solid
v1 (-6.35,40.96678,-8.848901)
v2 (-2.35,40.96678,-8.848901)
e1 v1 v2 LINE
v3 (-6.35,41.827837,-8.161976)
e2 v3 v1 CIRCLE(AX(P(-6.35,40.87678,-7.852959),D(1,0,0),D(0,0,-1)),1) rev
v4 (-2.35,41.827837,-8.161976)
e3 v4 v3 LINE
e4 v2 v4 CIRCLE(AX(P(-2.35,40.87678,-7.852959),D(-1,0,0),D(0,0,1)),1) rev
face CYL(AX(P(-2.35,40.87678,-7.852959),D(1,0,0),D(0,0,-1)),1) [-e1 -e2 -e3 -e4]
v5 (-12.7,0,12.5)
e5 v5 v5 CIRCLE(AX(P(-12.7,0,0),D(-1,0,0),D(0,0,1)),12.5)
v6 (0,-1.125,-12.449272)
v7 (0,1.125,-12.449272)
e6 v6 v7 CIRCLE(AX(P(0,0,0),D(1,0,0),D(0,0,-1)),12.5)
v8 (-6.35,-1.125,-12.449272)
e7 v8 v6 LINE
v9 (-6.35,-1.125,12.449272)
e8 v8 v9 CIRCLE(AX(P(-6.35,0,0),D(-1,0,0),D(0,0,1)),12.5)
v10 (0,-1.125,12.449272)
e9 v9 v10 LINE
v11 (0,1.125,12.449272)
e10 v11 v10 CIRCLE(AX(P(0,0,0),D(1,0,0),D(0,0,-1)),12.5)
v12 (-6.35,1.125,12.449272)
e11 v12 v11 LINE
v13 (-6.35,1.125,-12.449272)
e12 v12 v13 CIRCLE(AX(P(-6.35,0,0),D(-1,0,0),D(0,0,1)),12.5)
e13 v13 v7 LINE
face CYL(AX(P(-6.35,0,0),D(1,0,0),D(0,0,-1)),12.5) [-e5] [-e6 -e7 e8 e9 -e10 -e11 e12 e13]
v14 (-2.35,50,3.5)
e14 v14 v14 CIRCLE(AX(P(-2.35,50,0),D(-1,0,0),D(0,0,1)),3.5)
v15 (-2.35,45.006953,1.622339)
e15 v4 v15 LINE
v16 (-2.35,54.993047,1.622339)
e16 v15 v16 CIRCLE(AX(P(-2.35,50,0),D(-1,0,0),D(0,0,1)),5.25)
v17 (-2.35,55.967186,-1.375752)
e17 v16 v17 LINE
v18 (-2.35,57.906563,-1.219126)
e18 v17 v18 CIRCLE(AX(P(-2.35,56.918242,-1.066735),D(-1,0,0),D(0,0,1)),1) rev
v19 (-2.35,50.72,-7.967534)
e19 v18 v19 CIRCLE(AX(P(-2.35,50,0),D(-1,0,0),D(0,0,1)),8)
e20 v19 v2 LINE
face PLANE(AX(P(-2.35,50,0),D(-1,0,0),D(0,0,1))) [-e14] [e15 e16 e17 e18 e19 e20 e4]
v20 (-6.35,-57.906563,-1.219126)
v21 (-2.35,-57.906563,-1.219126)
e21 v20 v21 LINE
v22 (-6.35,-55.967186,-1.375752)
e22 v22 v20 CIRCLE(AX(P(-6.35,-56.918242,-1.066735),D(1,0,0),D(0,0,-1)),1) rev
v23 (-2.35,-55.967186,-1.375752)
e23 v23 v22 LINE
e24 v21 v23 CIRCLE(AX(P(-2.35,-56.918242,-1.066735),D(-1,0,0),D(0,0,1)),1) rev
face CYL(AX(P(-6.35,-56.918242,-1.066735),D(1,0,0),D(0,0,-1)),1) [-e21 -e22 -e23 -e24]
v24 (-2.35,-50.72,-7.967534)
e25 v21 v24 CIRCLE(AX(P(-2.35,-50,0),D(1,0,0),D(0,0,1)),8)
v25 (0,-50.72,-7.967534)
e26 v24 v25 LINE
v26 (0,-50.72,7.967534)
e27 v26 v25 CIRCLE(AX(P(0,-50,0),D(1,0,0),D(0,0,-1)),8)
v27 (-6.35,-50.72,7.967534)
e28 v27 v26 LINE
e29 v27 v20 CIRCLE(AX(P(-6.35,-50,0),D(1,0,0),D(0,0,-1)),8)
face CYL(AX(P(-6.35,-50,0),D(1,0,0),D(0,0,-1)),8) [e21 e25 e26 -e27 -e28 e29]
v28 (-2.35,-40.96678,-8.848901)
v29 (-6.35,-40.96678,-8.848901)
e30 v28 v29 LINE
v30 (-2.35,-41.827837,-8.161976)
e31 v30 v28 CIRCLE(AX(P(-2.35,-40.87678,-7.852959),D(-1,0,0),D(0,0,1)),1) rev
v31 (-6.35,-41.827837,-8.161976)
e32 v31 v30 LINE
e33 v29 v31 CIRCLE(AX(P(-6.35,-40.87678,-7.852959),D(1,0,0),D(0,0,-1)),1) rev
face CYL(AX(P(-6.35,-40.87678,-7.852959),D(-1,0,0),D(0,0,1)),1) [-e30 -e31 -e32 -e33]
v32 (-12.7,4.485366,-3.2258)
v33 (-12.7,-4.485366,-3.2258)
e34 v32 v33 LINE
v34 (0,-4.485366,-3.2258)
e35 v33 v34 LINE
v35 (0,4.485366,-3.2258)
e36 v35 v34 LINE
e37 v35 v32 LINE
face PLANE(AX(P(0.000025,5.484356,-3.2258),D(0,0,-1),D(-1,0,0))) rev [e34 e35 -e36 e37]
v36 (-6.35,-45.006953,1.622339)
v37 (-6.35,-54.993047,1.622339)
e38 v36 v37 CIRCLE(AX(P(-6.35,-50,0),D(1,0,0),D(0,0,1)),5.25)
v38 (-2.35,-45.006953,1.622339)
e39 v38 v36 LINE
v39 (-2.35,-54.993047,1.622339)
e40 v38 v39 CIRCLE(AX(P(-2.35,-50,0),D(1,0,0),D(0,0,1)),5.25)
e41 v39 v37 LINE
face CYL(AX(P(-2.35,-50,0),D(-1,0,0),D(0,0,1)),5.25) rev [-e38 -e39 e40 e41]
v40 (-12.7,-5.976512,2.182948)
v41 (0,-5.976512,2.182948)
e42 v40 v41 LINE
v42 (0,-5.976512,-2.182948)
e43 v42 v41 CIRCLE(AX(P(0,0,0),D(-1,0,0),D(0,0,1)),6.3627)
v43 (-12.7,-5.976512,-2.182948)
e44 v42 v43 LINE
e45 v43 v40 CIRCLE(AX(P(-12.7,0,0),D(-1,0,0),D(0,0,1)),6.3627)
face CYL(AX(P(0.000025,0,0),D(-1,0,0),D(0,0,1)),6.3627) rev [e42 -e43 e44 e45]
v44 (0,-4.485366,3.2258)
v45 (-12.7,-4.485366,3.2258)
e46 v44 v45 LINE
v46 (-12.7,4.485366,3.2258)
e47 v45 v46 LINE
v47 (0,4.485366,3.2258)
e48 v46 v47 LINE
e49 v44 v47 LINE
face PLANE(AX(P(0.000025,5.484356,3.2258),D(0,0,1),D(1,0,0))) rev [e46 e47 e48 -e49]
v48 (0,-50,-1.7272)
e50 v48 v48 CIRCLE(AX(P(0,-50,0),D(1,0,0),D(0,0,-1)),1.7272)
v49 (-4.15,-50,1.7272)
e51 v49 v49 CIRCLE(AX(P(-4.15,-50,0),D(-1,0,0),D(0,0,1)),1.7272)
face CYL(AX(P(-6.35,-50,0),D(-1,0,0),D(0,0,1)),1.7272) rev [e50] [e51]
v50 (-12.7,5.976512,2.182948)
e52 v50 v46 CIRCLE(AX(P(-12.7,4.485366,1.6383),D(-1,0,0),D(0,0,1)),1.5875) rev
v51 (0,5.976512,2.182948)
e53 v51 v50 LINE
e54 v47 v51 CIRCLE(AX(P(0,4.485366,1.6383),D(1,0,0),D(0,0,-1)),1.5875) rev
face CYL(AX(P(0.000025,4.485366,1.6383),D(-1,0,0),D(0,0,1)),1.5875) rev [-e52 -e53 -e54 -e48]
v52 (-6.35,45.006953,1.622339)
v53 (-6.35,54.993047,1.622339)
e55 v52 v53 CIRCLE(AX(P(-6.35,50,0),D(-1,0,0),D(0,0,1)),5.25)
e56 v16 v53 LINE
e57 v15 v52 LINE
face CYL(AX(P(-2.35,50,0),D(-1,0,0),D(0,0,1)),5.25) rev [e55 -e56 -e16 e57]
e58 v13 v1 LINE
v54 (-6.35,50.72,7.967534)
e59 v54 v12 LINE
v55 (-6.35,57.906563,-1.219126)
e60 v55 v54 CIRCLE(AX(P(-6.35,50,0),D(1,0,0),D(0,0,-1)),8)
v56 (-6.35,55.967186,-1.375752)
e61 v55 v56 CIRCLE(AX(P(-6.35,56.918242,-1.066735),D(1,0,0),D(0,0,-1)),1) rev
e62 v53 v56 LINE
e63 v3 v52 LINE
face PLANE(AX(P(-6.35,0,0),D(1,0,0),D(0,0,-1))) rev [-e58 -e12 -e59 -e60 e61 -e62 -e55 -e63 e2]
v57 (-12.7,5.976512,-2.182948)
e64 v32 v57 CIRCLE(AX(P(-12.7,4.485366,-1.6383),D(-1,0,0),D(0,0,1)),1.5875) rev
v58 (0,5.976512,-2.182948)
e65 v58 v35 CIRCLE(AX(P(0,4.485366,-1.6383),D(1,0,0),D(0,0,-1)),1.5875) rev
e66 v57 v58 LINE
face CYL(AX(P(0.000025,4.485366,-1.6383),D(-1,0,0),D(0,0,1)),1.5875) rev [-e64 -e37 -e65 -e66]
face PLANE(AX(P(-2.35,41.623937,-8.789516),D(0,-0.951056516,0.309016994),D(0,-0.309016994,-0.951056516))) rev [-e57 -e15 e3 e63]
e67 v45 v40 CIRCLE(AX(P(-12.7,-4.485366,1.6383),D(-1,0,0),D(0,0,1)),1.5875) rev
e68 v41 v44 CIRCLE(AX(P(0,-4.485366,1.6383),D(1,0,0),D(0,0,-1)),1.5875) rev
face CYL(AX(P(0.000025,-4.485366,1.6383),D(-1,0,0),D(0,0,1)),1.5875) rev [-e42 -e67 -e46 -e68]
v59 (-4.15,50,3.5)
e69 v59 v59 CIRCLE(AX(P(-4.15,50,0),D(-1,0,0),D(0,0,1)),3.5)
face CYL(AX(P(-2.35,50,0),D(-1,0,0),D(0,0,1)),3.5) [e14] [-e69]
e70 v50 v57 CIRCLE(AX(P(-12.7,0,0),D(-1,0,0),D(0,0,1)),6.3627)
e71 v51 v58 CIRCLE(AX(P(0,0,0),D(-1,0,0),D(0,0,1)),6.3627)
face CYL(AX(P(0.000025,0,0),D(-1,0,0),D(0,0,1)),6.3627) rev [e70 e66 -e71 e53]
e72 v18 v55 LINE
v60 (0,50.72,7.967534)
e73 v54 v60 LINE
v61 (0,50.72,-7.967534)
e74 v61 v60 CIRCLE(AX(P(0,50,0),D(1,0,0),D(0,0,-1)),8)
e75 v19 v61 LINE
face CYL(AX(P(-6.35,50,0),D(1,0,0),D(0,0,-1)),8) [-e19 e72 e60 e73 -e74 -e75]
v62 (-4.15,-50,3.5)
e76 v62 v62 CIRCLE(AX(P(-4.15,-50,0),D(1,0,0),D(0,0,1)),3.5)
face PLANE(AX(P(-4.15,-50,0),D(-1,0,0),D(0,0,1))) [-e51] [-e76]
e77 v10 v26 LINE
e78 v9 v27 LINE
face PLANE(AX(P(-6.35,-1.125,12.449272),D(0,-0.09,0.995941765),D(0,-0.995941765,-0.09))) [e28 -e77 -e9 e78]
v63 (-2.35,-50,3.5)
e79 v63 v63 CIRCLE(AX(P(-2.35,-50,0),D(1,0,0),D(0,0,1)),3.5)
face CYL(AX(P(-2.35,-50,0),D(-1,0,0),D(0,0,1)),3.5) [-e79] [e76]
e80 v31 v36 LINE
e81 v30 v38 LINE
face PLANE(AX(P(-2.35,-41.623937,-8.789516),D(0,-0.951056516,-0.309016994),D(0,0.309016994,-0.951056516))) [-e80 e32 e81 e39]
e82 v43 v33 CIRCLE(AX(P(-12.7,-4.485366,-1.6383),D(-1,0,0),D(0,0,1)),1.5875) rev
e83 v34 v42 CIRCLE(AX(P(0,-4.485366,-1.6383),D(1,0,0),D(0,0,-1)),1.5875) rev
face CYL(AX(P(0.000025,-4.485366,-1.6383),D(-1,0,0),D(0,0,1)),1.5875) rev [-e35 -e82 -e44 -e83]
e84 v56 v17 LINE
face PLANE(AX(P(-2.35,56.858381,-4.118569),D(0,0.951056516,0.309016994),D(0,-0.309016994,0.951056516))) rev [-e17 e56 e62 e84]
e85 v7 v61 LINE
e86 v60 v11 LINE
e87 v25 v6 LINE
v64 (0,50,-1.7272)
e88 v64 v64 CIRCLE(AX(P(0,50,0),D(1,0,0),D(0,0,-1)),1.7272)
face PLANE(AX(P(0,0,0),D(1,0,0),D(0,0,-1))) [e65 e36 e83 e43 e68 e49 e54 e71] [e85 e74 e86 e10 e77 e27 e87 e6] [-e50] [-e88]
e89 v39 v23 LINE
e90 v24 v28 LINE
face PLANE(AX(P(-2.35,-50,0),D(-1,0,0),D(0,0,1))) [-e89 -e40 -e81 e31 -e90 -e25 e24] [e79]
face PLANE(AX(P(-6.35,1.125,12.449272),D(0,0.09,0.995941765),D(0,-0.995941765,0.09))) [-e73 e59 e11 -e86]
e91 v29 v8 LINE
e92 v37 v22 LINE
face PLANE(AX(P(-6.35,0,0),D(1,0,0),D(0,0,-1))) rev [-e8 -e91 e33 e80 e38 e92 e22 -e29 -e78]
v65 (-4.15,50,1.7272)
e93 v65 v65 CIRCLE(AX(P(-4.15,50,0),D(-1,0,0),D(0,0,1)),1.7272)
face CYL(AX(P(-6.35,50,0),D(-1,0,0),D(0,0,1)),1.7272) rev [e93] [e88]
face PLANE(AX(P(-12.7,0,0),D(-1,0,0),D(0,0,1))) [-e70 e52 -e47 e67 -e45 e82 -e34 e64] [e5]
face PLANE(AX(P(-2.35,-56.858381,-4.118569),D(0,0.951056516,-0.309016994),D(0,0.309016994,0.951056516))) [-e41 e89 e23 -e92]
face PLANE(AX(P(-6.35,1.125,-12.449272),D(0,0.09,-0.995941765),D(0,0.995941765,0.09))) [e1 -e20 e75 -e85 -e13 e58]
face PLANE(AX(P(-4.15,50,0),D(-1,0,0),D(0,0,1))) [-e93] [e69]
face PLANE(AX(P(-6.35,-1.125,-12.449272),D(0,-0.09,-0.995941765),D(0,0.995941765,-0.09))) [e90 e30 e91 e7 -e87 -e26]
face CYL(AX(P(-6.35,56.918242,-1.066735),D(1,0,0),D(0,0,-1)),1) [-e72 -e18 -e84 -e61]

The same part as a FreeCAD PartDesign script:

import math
import FreeCAD as App
import Part
import Sketcher
from FreeCAD import Vector
Q = App.Units.Quantity


def edges_at(feature, points):
    """Names of the edges that pass closest to the given points."""
    edges = feature.Shape.Edges
    near = lambda p: min(range(len(edges)), key=lambda i: edges[i].distToShape(Part.Vertex(*p))[0])
    return sorted({f"Edge{near(p) + 1}" for p in points})


def add_polygon(sketch, points):
    """Adds a closed chain of lines whose ends are joined by coincident constraints."""
    first, n = sketch.GeometryCount, len(points)
    for a, b in zip(points, points[1:] + points[:1]):
        sketch.addGeometry(Part.LineSegment(App.Vector(*a, 0), App.Vector(*b, 0)), False)
    for i in range(n):
        sketch.addConstraint(Sketcher.Constraint("Coincident", first + i, 2, first + (i + 1) % n, 1))

doc = App.newDocument("Part")
body = doc.addObject("PartDesign::Body", "Body")

# Sketch on YZ plane
sketch1 = doc.addObject("Sketcher::SketchObject", "Sketch")
body.addObject(sketch1)
sketch1.AttachmentSupport = (doc.YZ_Plane, [""])
sketch1.MapMode = "FlatFace"
sketch1.addGeometry([
    Part.LineSegment(Vector(-1.125, 12.449272, 0), Vector(-50.72, 7.967534, 0)),  # 0
    Part.ArcOfCircle(Part.Circle(Vector(-50, 0, 0), Vector(0, 0, 1), 8), math.radians(95.163607), math.radians(264.836393)),  # 1
    Part.LineSegment(Vector(-50.72, -7.967534, 0), Vector(-1.125, -12.449272, 0)),  # 2
    Part.ArcOfCircle(Part.Circle(Vector(0, 0, 0), Vector(0, 0, 1), 12.5), math.radians(-95.163607), math.radians(-84.836393)),  # 3
    Part.LineSegment(Vector(1.125, -12.449272, 0), Vector(50.72, -7.967534, 0)),  # 4
    Part.ArcOfCircle(Part.Circle(Vector(50, 0, 0), Vector(0, 0, 1), 8), math.radians(-84.836393), math.radians(84.836393)),  # 5
    Part.LineSegment(Vector(50.72, 7.967534, 0), Vector(1.125, 12.449272, 0)),  # 6
    Part.ArcOfCircle(Part.Circle(Vector(0, 0, 0), Vector(0, 0, 1), 12.5), math.radians(84.836393), math.radians(95.163607)),  # 7
], False)
sketch1.addConstraint([
    Sketcher.Constraint("Tangent", 0, 2, 1, 1),
    Sketcher.Constraint("Tangent", 1, 2, 2, 1),
    Sketcher.Constraint("Tangent", 2, 2, 3, 1),
    Sketcher.Constraint("Tangent", 3, 2, 4, 1),
    Sketcher.Constraint("Tangent", 4, 2, 5, 1),
    Sketcher.Constraint("Tangent", 5, 2, 6, 1),
    Sketcher.Constraint("Tangent", 6, 2, 7, 1),
    Sketcher.Constraint("Tangent", 7, 2, 0, 1),
    Sketcher.Constraint("Coincident", 3, 3, -1, 1),
    Sketcher.Constraint("Coincident", 7, 3, -1, 1),
    Sketcher.Constraint("Equal", 1, 5),
    Sketcher.Constraint("Equal", 3, 7),
    Sketcher.Constraint("Symmetric", 1, 3, 5, 3, -1, 1),
    Sketcher.Constraint("PointOnObject", 1, 3, -1),
    Sketcher.Constraint("Radius", 1, Q("8 mm")),
    Sketcher.Constraint("Radius", 3, Q("12.5 mm")),
    Sketcher.Constraint("DistanceX", 1, 3, -1, 1, Q("50 mm")),
])
pad1 = doc.addObject("PartDesign::Pad", "Pad")
body.addObject(pad1)
pad1.Profile = sketch1
pad1.Length = 6.35
pad1.Reversed = True

# Sketch on YZ plane
sketch2 = doc.addObject("Sketcher::SketchObject", "Sketch001")
body.addObject(sketch2)
sketch2.AttachmentSupport = (doc.YZ_Plane, [""])
sketch2.MapMode = "FlatFace"
sketch2.AttachmentOffset = App.Placement(Vector(0, 0, -6.35), App.Rotation())
sketch2.addGeometry([
    Part.LineSegment(Vector(54.993047, 1.622339, 0), Vector(56.858381, -4.118569, 0)),  # 0
    Part.ArcOfCircle(Part.Circle(Vector(50, 0, 0), Vector(0, 0, 1), 8), math.radians(-84.836393), math.radians(-30.9855)),  # 1
    Part.LineSegment(Vector(50.72, -7.967534, 0), Vector(41.623937, -8.789516, 0)),  # 2
    Part.LineSegment(Vector(41.623937, -8.789516, 0), Vector(45.006953, 1.622339, 0)),  # 3
    Part.ArcOfCircle(Part.Circle(Vector(50, 0, 0), Vector(0, 0, 1), 5.25), math.radians(18), math.radians(162)),  # 4
    Part.Circle(Vector(50, 0, 0), Vector(0, 0, 1), 3.5),  # 5
], False)
sketch2.addConstraint([
    Sketcher.Constraint("Coincident", 0, 2, 1, 2),
    Sketcher.Constraint("Tangent", 1, 1, 2, 1),
    Sketcher.Constraint("Coincident", 2, 2, 3, 1),
    Sketcher.Constraint("Tangent", 3, 2, 4, 2),
    Sketcher.Constraint("Tangent", 4, 1, 0, 1),
    Sketcher.Constraint("Coincident", 4, 3, 1, 3),
    Sketcher.Constraint("Coincident", 5, 3, 1, 3),
    Sketcher.Constraint("PointOnObject", 1, 3, -1),
    Sketcher.Constraint("Horizontal", 3, 2, 4, 1),
    Sketcher.Constraint("Diameter", 5, Q("7 mm")),
    Sketcher.Constraint("Radius", 1, Q("8 mm")),
    Sketcher.Constraint("Angle", 0, Q("-72 deg")),
    Sketcher.Constraint("Radius", 4, Q("5.25 mm")),
    Sketcher.Constraint("DistanceX", -1, 1, 1, 3, Q("50 mm")),
    Sketcher.Constraint("DistanceX", -1, 1, 1, 1, Q("50.72 mm")),
])
pocket1 = doc.addObject("PartDesign::Pocket", "Pocket")
body.addObject(pocket1)
pocket1.Profile = sketch2
pocket1.Length = 4
pocket1.Reversed = True
doc.recompute()

fillet = doc.addObject("PartDesign::Fillet", "Fillet")
body.addObject(fillet)
fillet.Base = (pocket1, edges_at(pocket1, [(-4.35, 56.858, -4.119), (-4.35, 41.624, -8.79)]))
fillet.Radius = 1
doc.recompute()

mirrored = doc.addObject("PartDesign::Mirrored", "Mirrored")
body.addObject(mirrored)
mirrored.Originals = [pocket1]
mirrored.MirrorPlane = (doc.XZ_Plane, [""])
body.Tip = mirrored

# Sketch on YZ plane
sketch3 = doc.addObject("Sketcher::SketchObject", "Sketch002")
body.addObject(sketch3)
sketch3.AttachmentSupport = (doc.YZ_Plane, [""])
sketch3.MapMode = "FlatFace"
sketch3.AttachmentOffset = App.Placement(Vector(0, 0, -6.35), App.Rotation())
sketch3.addGeometry(Part.Circle(Vector(0, 0, 0), Vector(0, 0, 1), 12.5), False)
sketch3.addConstraint([
    Sketcher.Constraint("Coincident", 0, 3, -1, 1),
    Sketcher.Constraint("Diameter", 0, Q("25 mm")),
])
pad2 = doc.addObject("PartDesign::Pad", "Pad001")
body.addObject(pad2)
pad2.Profile = sketch3
pad2.Length = 6.35
pad2.Reversed = True

# Sketch on YZ plane
sketch4 = doc.addObject("Sketcher::SketchObject", "Sketch003")
body.addObject(sketch4)
sketch4.AttachmentSupport = (doc.YZ_Plane, [""])
sketch4.MapMode = "FlatFace"
sketch4.AttachmentOffset = App.Placement(Vector(0, 0, -12.7), App.Rotation())
sketch4.addGeometry([
    Part.LineSegment(Vector(5.484356, -3.2258, 0), Vector(-5.484356, -3.2258, 0)),
    Part.ArcOfCircle(Part.Circle(Vector(0, 0, 0), Vector(0, 0, 1), 6.3627), math.radians(149.536722), math.radians(210.463278)),
    Part.LineSegment(Vector(-5.484356, 3.2258, 0), Vector(5.484356, 3.2258, 0)),
    Part.ArcOfCircle(Part.Circle(Vector(0, 0, 0), Vector(0, 0, 1), 6.3627), math.radians(-30.463278), math.radians(30.463278)),
], False)
sketch4.addConstraint([
    Sketcher.Constraint("Coincident", 0, 2, 1, 2),
    Sketcher.Constraint("Coincident", 1, 1, 2, 1),
    Sketcher.Constraint("Coincident", 2, 2, 3, 2),
    Sketcher.Constraint("Coincident", 3, 1, 0, 1),
    Sketcher.Constraint("Horizontal", 0),
    Sketcher.Constraint("Horizontal", 2),
    Sketcher.Constraint("Coincident", 1, 3, -1, 1),
    Sketcher.Constraint("Coincident", 3, 3, -1, 1),
    Sketcher.Constraint("Equal", 1, 3),
    Sketcher.Constraint("Vertical", 0, 2, 1, 1),
    Sketcher.Constraint("Radius", 1, Q("6.3627 mm")),
    Sketcher.Constraint("DistanceY", 0, 2, -1, 1, Q("3.2258 mm")),
])
pocket2 = doc.addObject("PartDesign::Pocket", "Pocket001")
body.addObject(pocket2)
pocket2.Profile = sketch4
pocket2.Type = "ThroughAll"
pocket2.Reversed = True
doc.recompute()

fillet2 = doc.addObject("PartDesign::Fillet", "Fillet001")
body.addObject(fillet2)
fillet2.Base = (pocket2, edges_at(pocket2, [(-4.35, -56.858, -4.119), (-4.35, -41.624, -8.79)]))
fillet2.Radius = 1
doc.recompute()

fillet3 = doc.addObject("PartDesign::Fillet", "Fillet002")
body.addObject(fillet3)
fillet3.Base = (fillet2, edges_at(fillet2, [
    (-6.35, 5.484, -3.226),
    (-6.35, 5.484, 3.226),
    (-6.35, -5.484, 3.226),
    (-6.35, -5.484, -3.226),
]))
fillet3.Radius = 1.5875

# Sketch on YZ plane
sketch5 = doc.addObject("Sketcher::SketchObject", "Sketch004")
body.addObject(sketch5)
sketch5.AttachmentSupport = (doc.YZ_Plane, [""])
sketch5.MapMode = "FlatFace"
sketch5.AttachmentOffset = App.Placement(Vector(0, 0, -6.35), App.Rotation())
sketch5.addGeometry(Part.Circle(Vector(50, 0, 0), Vector(0, 0, 1), 3.5), False)
sketch5.addConstraint([
    Sketcher.Constraint("PointOnObject", 0, 3, -1),
    Sketcher.Constraint("Diameter", 0, Q("7 mm")),
    Sketcher.Constraint("DistanceX", -1, 1, 0, 3, Q("50 mm")),
])
pocket3 = doc.addObject("PartDesign::Pocket", "Pocket002")
body.addObject(pocket3)
pocket3.Profile = sketch5
pocket3.Length = 2.2
pocket3.Reversed = True

# Sketch on XZ plane
sketch6 = doc.addObject("Sketcher::SketchObject", "Sketch005")
body.addObject(sketch6)
sketch6.AttachmentSupport = (doc.XZ_Plane, [""])
sketch6.MapMode = "FlatFace"
sketch6.AttachmentOffset = App.Placement(Vector(0, 0, -50), App.Rotation())
add_polygon(sketch6, [(6.977806, 0), (-6.35, 0), (-6.35, 1.7272), (5.94, 1.7272)])  # lines 0-3
sketch6.addConstraint([
    Sketcher.Constraint("Horizontal", 0),
    Sketcher.Constraint("Vertical", 1),
    Sketcher.Constraint("Horizontal", 2),
    Sketcher.Constraint("PointOnObject", 0, 2, -1),
    Sketcher.Constraint("Angle", 3, Q("-59 deg")),
    Sketcher.Constraint("DistanceX", 2, 1, 2, 2, Q("12.29 mm")),
    Sketcher.Constraint("DistanceX", 0, 2, -1, 1, Q("6.35 mm")),
    Sketcher.Constraint("DistanceY", 1, 1, 1, 2, Q("1.7272 mm")),
])
groove = doc.addObject("PartDesign::Groove", "Groove")
body.addObject(groove)
groove.Profile = sketch6
groove.ReferenceAxis = (sketch6, ["H_Axis"])
groove.Angle = 360
doc.recompute()

mirrored2 = doc.addObject("PartDesign::Mirrored", "Mirrored001")
body.addObject(mirrored2)
mirrored2.Originals = [pocket3, groove]
mirrored2.MirrorPlane = (doc.XZ_Plane, [""])
body.Tip = mirrored2

doc.recompute()
